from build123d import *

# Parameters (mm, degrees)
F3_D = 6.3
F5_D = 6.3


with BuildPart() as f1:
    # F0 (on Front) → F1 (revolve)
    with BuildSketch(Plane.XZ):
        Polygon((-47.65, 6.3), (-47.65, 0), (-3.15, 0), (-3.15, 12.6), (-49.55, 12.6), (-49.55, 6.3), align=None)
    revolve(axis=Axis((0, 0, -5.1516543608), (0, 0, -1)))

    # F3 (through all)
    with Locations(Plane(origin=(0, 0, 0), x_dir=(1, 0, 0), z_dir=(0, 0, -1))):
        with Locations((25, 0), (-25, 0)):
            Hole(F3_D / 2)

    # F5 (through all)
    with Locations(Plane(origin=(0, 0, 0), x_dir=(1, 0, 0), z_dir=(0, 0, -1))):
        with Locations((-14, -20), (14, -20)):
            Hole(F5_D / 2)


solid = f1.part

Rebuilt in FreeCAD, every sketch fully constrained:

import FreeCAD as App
import Part
import Sketcher

doc = App.newDocument("Part")
body = doc.addObject("PartDesign::Body", "Body")

# Sketch on XZ plane
sketch1 = doc.addObject("Sketcher::SketchObject", "Sketch")
body.addObject(sketch1)
sketch1.AttachmentSupport = (doc.XZ_Plane, [""])
sketch1.MapMode = "FlatFace"
sketch1.addGeometry([
    Part.LineSegment(App.Vector(-47.6, 6.3, 0), App.Vector(-47.6, 0, 0)),  # 0
    Part.LineSegment(App.Vector(-47.6, 0, 0), App.Vector(-3.1, 0, 0)),  # 1
    Part.LineSegment(App.Vector(-3.1, 0, 0), App.Vector(-3.1, 12.6, 0)),  # 2
    Part.LineSegment(App.Vector(-3.1, 12.6, 0), App.Vector(-49.5, 12.6, 0)),  # 3
    Part.LineSegment(App.Vector(-49.5, 12.6, 0), App.Vector(-49.5, 6.3, 0)),  # 4
    Part.LineSegment(App.Vector(-49.5, 6.3, 0), App.Vector(-47.6, 6.3, 0)),  # 5
], False)
sketch1.addConstraint([
    Sketcher.Constraint("Coincident", 0, 2, 1, 1),
    Sketcher.Constraint("Coincident", 1, 2, 2, 1),
    Sketcher.Constraint("Coincident", 2, 2, 3, 1),
    Sketcher.Constraint("Coincident", 3, 2, 4, 1),
    Sketcher.Constraint("Coincident", 4, 2, 5, 1),
    Sketcher.Constraint("Coincident", 5, 2, 0, 1),
    Sketcher.Constraint("Vertical", 0),
    Sketcher.Constraint("Horizontal", 1),
    Sketcher.Constraint("Vertical", 2),
    Sketcher.Constraint("Horizontal", 3),
    Sketcher.Constraint("Vertical", 4),
    Sketcher.Constraint("Horizontal", 5),
    Sketcher.Constraint("PointOnObject", 0, 2, -1),
    Sketcher.Constraint("Equal", 0, 4),
    Sketcher.Constraint("DistanceX", 1, 1, 1, 2, 44.5),
    Sketcher.Constraint("DistanceX", 3, 2, 3, 1, 46.4),
    Sketcher.Constraint("DistanceY", 0, 2, 0, 1, 6.3),
    Sketcher.Constraint("DistanceX", 0, 2, -1, 1, 47.65),
])
revolution = doc.addObject("PartDesign::Revolution", "Revolution")
body.addObject(revolution)
revolution.Profile = sketch1
revolution.ReferenceAxis = (sketch1, ["V_Axis"])
revolution.Angle = 360

# Sketch on XY plane
sketch2 = doc.addObject("Sketcher::SketchObject", "Sketch001")
body.addObject(sketch2)
sketch2.AttachmentSupport = (doc.XY_Plane, [""])
sketch2.MapMode = "FlatFace"
sketch2.addGeometry([
    Part.Circle(App.Vector(25, 0, 0), App.Vector(0, 0, 1), 3.1),
    Part.Circle(App.Vector(-25, 0, 0), App.Vector(0, 0, 1), 3.1),
], False)
sketch2.addConstraint([
    Sketcher.Constraint("Equal", 0, 1),
    Sketcher.Constraint("Symmetric", 0, 3, 1, 3, -1, 1),
    Sketcher.Constraint("PointOnObject", 0, 3, -1),
    Sketcher.Constraint("Diameter", 0, 6.3),
    Sketcher.Constraint("DistanceX", -1, 1, 0, 3, 25.0),
])
doc.recompute()
hole = doc.addObject("PartDesign::Hole", "Hole")
body.addObject(hole)
hole.Profile = sketch2
hole.ThreadType = "None"
hole.Diameter = 6.3
hole.DepthType = "ThroughAll"
hole.Reversed = True

# Sketch on XY plane
sketch3 = doc.addObject("Sketcher::SketchObject", "Sketch002")
body.addObject(sketch3)
sketch3.AttachmentSupport = (doc.XY_Plane, [""])
sketch3.MapMode = "FlatFace"
sketch3.addGeometry([
    Part.Circle(App.Vector(-14, 20, 0), App.Vector(0, 0, 1), 3.1),
    Part.Circle(App.Vector(14, 20, 0), App.Vector(0, 0, 1), 3.1),
], False)
sketch3.addConstraint([
    Sketcher.Constraint("Equal", 0, 1),
    Sketcher.Constraint("Symmetric", 0, 3, 1, 3, -2),
    Sketcher.Constraint("Diameter", 0, 6.3),
    Sketcher.Constraint("DistanceX", 0, 3, -1, 1, 14.0),
    Sketcher.Constraint("DistanceY", -1, 1, 0, 3, 20.0),
])
doc.recompute()
hole2 = doc.addObject("PartDesign::Hole", "Hole001")
body.addObject(hole2)
hole2.Profile = sketch3
hole2.ThreadType = "None"
hole2.Diameter = 6.3
hole2.DepthType = "ThroughAll"
hole2.Reversed = True

doc.recompute()
